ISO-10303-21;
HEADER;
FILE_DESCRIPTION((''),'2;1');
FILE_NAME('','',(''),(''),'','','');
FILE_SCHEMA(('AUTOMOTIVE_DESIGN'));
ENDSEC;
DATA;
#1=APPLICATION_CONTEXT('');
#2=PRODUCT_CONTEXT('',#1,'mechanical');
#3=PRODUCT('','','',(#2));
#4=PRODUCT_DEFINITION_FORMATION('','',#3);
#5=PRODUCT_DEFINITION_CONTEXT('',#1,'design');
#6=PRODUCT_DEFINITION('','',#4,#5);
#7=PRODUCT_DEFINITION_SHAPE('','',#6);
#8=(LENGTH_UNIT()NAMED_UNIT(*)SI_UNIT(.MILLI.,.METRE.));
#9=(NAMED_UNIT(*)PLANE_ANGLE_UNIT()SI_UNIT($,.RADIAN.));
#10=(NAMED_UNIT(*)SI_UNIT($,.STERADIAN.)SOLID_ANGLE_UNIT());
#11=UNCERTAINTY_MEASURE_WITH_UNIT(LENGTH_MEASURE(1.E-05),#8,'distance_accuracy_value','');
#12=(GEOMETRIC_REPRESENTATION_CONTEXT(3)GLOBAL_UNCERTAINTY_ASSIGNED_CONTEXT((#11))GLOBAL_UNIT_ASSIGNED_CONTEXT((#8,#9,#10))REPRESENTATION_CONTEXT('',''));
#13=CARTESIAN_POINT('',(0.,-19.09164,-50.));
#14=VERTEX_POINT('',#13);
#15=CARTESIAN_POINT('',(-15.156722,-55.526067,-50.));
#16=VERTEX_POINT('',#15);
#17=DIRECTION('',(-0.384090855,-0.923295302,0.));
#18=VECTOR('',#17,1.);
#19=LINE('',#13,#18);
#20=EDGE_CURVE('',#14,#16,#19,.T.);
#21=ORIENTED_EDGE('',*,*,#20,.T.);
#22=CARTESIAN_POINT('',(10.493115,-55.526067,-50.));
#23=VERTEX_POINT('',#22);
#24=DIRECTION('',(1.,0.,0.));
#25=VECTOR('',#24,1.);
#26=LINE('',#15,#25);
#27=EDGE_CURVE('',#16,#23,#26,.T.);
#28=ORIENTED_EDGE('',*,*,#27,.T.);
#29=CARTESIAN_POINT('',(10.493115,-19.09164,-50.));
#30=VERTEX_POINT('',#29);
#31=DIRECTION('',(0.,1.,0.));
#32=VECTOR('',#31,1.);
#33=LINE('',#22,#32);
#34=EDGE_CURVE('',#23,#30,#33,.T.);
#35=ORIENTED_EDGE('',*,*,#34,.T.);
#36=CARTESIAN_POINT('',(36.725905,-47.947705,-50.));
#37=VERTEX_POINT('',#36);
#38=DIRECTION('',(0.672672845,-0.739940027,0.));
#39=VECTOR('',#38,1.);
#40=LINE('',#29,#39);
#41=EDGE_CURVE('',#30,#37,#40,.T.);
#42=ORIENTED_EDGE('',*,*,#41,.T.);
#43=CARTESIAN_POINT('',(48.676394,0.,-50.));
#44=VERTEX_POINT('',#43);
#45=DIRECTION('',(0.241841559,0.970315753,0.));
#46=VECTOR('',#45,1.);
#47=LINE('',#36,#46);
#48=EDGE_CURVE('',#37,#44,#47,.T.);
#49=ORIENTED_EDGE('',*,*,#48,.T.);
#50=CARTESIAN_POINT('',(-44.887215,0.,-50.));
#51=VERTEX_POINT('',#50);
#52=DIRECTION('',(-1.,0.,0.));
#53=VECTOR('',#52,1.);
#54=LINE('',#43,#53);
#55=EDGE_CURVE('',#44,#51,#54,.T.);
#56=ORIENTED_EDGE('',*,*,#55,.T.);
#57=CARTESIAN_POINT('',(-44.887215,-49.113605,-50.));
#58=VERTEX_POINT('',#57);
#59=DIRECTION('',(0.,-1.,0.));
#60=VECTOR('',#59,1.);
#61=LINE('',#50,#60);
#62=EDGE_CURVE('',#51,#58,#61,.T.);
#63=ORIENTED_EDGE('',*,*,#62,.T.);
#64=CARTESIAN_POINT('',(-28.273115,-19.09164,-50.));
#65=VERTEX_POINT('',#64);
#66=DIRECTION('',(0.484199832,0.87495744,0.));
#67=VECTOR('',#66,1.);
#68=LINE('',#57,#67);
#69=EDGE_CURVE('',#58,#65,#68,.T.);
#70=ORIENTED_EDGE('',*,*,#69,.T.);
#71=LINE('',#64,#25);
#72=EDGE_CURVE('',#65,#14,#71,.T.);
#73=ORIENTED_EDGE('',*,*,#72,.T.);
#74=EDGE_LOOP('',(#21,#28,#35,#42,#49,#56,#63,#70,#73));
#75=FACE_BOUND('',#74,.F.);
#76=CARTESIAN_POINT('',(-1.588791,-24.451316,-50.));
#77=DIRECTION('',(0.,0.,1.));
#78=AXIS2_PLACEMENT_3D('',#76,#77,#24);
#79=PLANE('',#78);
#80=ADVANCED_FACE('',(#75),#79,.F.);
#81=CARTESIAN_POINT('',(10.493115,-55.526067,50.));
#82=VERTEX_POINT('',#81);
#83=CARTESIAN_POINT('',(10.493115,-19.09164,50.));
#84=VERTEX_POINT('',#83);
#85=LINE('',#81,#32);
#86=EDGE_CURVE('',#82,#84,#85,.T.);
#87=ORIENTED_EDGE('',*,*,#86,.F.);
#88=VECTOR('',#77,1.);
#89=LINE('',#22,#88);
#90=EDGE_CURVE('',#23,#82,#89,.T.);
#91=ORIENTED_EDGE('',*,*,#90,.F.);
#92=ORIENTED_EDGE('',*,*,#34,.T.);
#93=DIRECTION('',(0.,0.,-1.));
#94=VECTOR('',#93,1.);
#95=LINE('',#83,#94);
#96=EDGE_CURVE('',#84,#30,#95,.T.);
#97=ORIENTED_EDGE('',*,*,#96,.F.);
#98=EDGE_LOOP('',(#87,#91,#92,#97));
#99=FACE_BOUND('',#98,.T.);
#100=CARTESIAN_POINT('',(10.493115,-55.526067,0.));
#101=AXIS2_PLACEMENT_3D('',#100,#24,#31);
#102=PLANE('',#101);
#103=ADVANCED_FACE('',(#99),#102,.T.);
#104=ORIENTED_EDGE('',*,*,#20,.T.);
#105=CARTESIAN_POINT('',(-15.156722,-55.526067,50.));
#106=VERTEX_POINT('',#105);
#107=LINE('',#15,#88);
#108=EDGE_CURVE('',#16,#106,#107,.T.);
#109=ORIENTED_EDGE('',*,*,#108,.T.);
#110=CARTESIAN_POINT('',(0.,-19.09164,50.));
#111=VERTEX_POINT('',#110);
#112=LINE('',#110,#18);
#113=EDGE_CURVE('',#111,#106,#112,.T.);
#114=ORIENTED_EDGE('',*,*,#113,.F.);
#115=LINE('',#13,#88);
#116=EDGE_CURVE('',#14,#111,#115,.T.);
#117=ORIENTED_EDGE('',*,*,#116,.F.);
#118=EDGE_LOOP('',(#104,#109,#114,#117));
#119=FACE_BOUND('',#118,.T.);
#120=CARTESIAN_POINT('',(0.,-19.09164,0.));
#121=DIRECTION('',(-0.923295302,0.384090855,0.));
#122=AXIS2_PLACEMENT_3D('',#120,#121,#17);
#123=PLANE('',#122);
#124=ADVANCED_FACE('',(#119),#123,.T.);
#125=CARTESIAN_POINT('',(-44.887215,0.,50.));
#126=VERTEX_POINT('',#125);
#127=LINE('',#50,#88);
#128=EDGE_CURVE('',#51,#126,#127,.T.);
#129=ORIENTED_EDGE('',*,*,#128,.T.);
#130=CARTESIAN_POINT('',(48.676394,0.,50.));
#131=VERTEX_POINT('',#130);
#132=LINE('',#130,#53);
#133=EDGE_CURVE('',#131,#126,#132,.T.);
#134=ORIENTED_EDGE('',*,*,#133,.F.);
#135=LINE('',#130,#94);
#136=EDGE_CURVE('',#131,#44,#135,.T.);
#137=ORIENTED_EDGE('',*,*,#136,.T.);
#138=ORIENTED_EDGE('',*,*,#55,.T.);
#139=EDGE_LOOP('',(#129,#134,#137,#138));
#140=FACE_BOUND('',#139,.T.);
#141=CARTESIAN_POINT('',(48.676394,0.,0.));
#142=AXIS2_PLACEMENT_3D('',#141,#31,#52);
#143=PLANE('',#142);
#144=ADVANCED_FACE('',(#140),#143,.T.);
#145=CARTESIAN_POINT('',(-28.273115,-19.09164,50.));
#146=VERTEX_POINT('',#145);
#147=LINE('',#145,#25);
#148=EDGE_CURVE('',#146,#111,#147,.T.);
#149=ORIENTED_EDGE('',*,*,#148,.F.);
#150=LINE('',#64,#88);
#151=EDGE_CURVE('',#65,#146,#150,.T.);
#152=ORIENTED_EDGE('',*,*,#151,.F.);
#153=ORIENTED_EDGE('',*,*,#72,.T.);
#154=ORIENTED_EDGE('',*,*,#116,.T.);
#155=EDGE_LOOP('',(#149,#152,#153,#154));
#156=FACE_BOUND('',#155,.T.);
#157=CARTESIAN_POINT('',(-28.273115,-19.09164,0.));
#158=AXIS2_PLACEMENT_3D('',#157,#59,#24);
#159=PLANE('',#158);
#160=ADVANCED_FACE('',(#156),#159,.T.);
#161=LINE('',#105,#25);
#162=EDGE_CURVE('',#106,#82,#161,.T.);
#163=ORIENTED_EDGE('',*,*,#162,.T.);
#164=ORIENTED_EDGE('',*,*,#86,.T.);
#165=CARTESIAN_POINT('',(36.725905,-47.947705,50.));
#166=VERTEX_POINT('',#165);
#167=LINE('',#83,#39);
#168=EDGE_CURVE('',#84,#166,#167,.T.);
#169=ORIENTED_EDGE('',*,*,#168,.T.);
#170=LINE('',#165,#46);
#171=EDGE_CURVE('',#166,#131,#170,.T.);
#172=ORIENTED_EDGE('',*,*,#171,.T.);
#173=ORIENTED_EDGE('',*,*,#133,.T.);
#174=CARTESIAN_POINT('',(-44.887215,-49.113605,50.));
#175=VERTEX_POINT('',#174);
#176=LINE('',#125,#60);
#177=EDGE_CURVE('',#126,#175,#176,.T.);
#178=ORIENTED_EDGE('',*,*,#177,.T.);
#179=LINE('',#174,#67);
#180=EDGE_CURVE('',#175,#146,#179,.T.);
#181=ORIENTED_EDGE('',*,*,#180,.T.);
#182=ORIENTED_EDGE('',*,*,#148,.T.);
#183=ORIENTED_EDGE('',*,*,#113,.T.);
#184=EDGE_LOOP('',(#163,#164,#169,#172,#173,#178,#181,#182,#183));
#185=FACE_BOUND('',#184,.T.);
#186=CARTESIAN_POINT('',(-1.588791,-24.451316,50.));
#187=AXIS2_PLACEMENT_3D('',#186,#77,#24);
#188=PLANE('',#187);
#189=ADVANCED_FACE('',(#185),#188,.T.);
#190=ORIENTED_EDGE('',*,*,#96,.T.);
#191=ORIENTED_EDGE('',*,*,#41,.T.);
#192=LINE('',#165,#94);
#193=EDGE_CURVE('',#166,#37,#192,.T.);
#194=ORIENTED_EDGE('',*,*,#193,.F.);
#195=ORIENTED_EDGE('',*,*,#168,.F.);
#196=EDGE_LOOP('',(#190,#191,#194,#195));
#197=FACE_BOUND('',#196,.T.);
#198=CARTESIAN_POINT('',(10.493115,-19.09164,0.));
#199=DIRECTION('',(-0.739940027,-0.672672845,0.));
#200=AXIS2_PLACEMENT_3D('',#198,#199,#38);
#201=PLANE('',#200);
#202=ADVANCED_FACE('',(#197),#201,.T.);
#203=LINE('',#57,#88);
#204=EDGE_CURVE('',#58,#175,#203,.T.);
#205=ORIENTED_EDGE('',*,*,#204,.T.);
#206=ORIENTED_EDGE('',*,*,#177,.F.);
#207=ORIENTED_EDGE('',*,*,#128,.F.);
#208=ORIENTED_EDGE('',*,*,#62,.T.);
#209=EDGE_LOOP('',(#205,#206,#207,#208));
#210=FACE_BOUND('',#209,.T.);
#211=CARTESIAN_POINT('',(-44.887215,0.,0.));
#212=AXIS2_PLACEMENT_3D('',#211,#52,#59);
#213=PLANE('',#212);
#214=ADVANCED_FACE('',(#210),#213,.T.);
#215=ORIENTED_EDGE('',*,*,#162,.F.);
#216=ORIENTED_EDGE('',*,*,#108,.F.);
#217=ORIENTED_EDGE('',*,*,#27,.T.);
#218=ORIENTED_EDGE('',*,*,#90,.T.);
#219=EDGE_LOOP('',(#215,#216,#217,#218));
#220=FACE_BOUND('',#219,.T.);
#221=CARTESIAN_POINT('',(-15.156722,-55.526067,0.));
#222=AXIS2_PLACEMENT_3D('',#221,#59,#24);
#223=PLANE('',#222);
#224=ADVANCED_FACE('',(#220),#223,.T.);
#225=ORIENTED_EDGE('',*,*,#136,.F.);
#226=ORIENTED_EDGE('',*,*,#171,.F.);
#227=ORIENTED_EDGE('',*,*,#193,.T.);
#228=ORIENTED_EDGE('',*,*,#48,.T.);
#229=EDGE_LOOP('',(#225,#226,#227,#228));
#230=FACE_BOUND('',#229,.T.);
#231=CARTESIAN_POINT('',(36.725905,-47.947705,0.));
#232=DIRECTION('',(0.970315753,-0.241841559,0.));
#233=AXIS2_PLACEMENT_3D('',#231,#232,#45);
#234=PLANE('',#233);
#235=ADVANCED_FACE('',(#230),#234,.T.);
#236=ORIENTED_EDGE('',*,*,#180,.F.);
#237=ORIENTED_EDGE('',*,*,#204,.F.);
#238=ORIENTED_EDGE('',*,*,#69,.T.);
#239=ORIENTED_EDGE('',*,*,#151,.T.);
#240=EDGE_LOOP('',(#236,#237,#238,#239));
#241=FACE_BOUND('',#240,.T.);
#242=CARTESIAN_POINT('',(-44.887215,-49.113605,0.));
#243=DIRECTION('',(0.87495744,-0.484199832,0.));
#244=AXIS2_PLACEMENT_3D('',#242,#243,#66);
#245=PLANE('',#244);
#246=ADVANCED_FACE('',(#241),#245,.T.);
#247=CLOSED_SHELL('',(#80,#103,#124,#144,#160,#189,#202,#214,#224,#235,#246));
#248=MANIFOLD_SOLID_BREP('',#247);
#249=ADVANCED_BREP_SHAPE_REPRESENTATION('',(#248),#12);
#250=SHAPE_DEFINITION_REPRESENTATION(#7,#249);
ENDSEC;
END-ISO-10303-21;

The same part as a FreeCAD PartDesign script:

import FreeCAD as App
import Part
import Sketcher
from FreeCAD import Vector
Q = App.Units.Quantity


def add_polygon(sketch, points):
    """Adds a closed chain of lines whose ends are joined by coincident constraints."""
    first, n = sketch.GeometryCount, len(points)
    for a, b in zip(points, points[1:] + points[:1]):
        sketch.addGeometry(Part.LineSegment(App.Vector(*a, 0), App.Vector(*b, 0)), False)
    for i in range(n):
        sketch.addConstraint(Sketcher.Constraint("Coincident", first + i, 2, first + (i + 1) % n, 1))

doc = App.newDocument("Part")
body = doc.addObject("PartDesign::Body", "Body")

# Sketch on XY plane
sketch1 = body.newObject("Sketcher::SketchObject", "Sketch")
sketch1.AttachmentSupport = (doc.getObject("XY_Plane"), [""])
sketch1.MapMode = "FlatFace"
add_polygon(sketch1, [(49, 0), (-45, 0), (-45, -49), (-28, -19), (0, -19), (-15, -56), (10, -56), (10, -19), (37, -48)])  # lines 0-8
sketch1.addConstraint([
    Sketcher.Constraint("Horizontal", 0),
    Sketcher.Constraint("Vertical", 1),
    Sketcher.Constraint("Horizontal", 3),
    Sketcher.Constraint("Horizontal", 5),
    Sketcher.Constraint("Vertical", 6),
    Sketcher.Constraint("PointOnObject", 0, 2, -1),
    Sketcher.Constraint("PointOnObject", 3, 2, -2),
    Sketcher.Constraint("Horizontal", 3, 2, 6, 2),
    Sketcher.Constraint("DistanceX", 0, 2, 0, 1, Q("93.563609 mm")),
    Sketcher.Constraint("DistanceX", 0, 2, 2, 2, Q("16.6141 mm")),
    Sketcher.Constraint("Distance", 8, Q("49.414538 mm")),
    Sketcher.Constraint("DistanceX", 3, 1, 3, 2, Q("28.273115 mm")),
    Sketcher.Constraint("DistanceX", 5, 1, 5, 2, Q("25.649837 mm")),
    Sketcher.Constraint("DistanceY", 1, 2, 1, 1, Q("49.113605 mm")),
    Sketcher.Constraint("DistanceY", 6, 1, 6, 2, Q("36.434427 mm")),
    Sketcher.Constraint("DistanceY", 2, 2, -1, 1, Q("19.09164 mm")),
    Sketcher.Constraint("DistanceX", 2, 2, 5, 2, Q("38.76623 mm")),
    Sketcher.Constraint("DistanceX", 5, 2, 7, 2, Q("26.23279 mm")),
])
pad1 = body.newObject("PartDesign::Pad", "Pad")
pad1.Profile = sketch1
pad1.Length = 100
pad1.Midplane = True

doc.recompute()
